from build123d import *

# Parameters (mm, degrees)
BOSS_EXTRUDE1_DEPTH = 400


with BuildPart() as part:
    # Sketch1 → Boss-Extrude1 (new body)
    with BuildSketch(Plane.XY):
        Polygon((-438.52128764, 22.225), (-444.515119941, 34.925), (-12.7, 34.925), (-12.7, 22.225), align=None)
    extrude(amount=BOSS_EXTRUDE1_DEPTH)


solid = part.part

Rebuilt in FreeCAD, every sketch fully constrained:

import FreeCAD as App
import Part
import Sketcher

doc = App.newDocument("Part")
body = doc.addObject("PartDesign::Body", "Body")

sketch1 = body.newObject("Sketcher::SketchObject", "Sketch")
sketch1.AttachmentSupport = (doc.getObject("XY_Plane"), [""])
sketch1.MapMode = "FlatFace"
sketch1.addGeometry(Part.LineSegment(App.Vector(-445, 35, 0), App.Vector(-439, 22, 0)), False)
sketch1.addGeometry(Part.LineSegment(App.Vector(-439, 22, 0), App.Vector(-13, 22, 0)), False)
sketch1.addGeometry(Part.LineSegment(App.Vector(-13, 22, 0), App.Vector(-13, 35, 0)), False)
sketch1.addGeometry(Part.LineSegment(App.Vector(-13, 35, 0), App.Vector(-445, 35, 0)), False)
sketch1.addConstraint(Sketcher.Constraint("Coincident", 0, 2, 1, 1))
sketch1.addConstraint(Sketcher.Constraint("Coincident", 1, 2, 2, 1))
sketch1.addConstraint(Sketcher.Constraint("Coincident", 2, 2, 3, 1))
sketch1.addConstraint(Sketcher.Constraint("Coincident", 3, 2, 0, 1))
sketch1.addConstraint(Sketcher.Constraint("Horizontal", 1))
sketch1.addConstraint(Sketcher.Constraint("Vertical", 2))
sketch1.addConstraint(Sketcher.Constraint("Horizontal", 3))
sketch1.addConstraint(Sketcher.Constraint("DistanceY", 2, 1, 2, 2, 12.7))
sketch1.addConstraint(Sketcher.Constraint("DistanceX", 1, 2, -1, 1, 12.7))
sketch1.addConstraint(Sketcher.Constraint("DistanceY", -1, 1, 0, 2, 22.225))
sketch1.addConstraint(Sketcher.Constraint("DistanceX", 3, 2, 3, 1, 431.81512))
sketch1.addConstraint(Sketcher.Constraint("DistanceX", 1, 1, 1, 2, 425.821288))
pad1 = body.newObject("PartDesign::Pad", "Pad")
pad1.Profile = sketch1
pad1.Length = 400

doc.recompute()
